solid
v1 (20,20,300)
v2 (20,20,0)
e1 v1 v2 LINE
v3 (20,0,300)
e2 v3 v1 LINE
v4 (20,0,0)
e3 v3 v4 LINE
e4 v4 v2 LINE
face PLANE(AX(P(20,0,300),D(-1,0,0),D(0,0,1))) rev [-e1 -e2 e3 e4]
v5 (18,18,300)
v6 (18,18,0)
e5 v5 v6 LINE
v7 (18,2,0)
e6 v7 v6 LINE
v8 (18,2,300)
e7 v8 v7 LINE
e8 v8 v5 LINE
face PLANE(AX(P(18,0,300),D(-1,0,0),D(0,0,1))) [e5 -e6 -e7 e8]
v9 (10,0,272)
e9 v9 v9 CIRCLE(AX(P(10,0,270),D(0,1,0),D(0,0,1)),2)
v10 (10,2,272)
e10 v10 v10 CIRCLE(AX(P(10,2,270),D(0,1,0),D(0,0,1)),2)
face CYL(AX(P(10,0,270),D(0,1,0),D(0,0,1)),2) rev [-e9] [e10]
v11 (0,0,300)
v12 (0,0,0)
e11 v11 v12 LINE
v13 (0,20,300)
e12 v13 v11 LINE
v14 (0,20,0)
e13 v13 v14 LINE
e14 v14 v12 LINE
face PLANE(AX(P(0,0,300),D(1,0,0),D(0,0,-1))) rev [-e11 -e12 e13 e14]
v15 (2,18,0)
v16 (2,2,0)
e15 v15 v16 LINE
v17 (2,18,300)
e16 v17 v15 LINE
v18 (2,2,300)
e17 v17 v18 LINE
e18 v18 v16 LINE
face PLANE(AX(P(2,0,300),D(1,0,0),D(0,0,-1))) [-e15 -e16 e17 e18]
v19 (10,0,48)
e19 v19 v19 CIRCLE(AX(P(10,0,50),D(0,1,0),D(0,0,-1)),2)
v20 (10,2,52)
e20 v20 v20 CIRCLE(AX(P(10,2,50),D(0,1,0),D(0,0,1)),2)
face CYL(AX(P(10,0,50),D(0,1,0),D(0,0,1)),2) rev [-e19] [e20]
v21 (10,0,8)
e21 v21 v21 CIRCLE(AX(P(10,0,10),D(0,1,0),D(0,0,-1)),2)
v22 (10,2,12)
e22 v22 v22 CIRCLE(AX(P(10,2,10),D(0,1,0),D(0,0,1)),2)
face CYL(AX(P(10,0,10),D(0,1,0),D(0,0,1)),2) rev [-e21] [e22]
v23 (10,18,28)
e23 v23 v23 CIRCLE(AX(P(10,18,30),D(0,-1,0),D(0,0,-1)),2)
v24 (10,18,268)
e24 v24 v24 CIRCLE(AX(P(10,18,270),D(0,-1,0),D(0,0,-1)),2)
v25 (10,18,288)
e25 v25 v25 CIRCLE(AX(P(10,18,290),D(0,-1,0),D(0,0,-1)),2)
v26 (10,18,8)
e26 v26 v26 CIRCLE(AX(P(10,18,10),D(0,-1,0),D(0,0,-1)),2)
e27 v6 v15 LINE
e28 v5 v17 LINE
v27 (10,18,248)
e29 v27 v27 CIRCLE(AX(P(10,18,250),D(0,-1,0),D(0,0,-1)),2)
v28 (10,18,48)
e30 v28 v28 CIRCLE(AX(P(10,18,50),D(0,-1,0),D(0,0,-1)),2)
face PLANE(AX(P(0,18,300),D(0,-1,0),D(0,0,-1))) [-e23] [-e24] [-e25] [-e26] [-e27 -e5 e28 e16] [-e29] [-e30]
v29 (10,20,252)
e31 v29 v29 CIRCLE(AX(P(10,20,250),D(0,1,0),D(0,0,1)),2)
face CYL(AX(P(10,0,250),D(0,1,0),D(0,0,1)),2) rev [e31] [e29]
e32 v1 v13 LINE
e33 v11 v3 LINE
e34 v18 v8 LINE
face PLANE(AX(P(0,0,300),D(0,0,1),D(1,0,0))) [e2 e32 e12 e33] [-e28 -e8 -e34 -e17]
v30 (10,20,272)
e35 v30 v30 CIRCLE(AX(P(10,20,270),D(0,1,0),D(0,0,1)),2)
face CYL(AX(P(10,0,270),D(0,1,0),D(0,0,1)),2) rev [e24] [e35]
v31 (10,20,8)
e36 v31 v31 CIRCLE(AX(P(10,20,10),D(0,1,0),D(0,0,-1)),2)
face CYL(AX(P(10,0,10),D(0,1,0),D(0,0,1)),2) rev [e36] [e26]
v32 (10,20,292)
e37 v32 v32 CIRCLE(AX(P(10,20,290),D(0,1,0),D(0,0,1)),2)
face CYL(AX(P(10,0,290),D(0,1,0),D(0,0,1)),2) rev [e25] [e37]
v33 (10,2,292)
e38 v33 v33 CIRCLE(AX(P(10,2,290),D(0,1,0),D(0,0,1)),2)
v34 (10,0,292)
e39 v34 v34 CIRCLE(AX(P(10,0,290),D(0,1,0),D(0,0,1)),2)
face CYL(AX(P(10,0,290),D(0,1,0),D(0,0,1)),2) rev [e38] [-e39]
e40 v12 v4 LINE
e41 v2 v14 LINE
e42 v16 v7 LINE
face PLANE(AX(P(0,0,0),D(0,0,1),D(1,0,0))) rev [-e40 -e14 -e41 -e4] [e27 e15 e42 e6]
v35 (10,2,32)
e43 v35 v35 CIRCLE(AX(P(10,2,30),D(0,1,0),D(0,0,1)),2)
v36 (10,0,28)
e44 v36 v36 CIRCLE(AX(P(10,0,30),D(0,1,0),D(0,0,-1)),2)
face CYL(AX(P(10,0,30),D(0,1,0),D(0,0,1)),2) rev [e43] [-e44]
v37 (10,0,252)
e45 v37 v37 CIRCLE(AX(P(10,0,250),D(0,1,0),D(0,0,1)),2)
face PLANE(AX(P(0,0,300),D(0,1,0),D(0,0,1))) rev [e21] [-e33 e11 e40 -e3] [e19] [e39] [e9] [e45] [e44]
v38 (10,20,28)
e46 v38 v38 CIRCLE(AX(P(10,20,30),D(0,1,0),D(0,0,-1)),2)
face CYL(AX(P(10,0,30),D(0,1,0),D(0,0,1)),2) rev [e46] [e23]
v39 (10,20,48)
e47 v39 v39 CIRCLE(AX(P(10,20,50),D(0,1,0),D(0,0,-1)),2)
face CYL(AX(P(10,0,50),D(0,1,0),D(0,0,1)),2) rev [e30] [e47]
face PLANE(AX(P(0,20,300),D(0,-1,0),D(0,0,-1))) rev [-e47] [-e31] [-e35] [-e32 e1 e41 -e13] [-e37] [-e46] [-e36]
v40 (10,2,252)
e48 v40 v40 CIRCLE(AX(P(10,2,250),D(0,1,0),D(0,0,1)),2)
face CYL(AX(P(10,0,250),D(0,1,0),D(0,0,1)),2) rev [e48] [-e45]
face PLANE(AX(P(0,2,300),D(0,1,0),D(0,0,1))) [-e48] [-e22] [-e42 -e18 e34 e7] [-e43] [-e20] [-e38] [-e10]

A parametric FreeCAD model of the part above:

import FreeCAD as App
import Part
import Sketcher

V = App.Vector
Q = App.Units.Quantity

doc = App.newDocument("Part")
body = doc.addObject("PartDesign::Body", "Body")

# Sketch on XY plane
sketch1 = body.newObject("Sketcher::SketchObject", "Sketch")
sketch1.AttachmentSupport = (doc.getObject("XY_Plane"), [""])
sketch1.MapMode = "FlatFace"
sketch1.addGeometry([
    Part.LineSegment(V(0, 20, 0), V(0, 0, 0)),  # 0
    Part.LineSegment(V(0, 0, 0), V(20, 0, 0)),  # 1
    Part.LineSegment(V(20, 0, 0), V(20, 20, 0)),  # 2
    Part.LineSegment(V(20, 20, 0), V(0, 20, 0)),  # 3
    Part.LineSegment(V(18, 2, 0), V(2, 2, 0)),  # 4
    Part.LineSegment(V(2, 2, 0), V(2, 18, 0)),  # 5
    Part.LineSegment(V(2, 18, 0), V(18, 18, 0)),  # 6
    Part.LineSegment(V(18, 18, 0), V(18, 2, 0)),  # 7
], False)
sketch1.addConstraint([
    Sketcher.Constraint("Coincident", 0, 2, 1, 1),
    Sketcher.Constraint("Coincident", 1, 2, 2, 1),
    Sketcher.Constraint("Coincident", 2, 2, 3, 1),
    Sketcher.Constraint("Coincident", 3, 2, 0, 1),
    Sketcher.Constraint("Coincident", 4, 2, 5, 1),
    Sketcher.Constraint("Coincident", 5, 2, 6, 1),
    Sketcher.Constraint("Coincident", 6, 2, 7, 1),
    Sketcher.Constraint("Coincident", 7, 2, 4, 1),
    Sketcher.Constraint("Vertical", 0),
    Sketcher.Constraint("Horizontal", 1),
    Sketcher.Constraint("Vertical", 2),
    Sketcher.Constraint("Horizontal", 3),
    Sketcher.Constraint("Horizontal", 4),
    Sketcher.Constraint("Vertical", 5),
    Sketcher.Constraint("Horizontal", 6),
    Sketcher.Constraint("Vertical", 7),
    Sketcher.Constraint("Coincident", 0, 2, -1, 1),
    Sketcher.Constraint("Equal", 3, 0),
    Sketcher.Constraint("Equal", 6, 5),
    Sketcher.Constraint("DistanceX", 1, 1, 1, 2, Q("20 mm")),
    Sketcher.Constraint("DistanceX", 4, 2, 4, 1, Q("16 mm")),
    Sketcher.Constraint("DistanceX", -1, 1, 4, 2, Q("2 mm")),
    Sketcher.Constraint("DistanceY", -1, 1, 4, 2, Q("2 mm")),
])
pad1 = body.newObject("PartDesign::Pad", "Pad")
pad1.Profile = sketch1
pad1.Length = 300

# Sketch on XZ plane
sketch2 = body.newObject("Sketcher::SketchObject", "Sketch001")
sketch2.AttachmentSupport = (doc.getObject("XZ_Plane"), [""])
sketch2.MapMode = "FlatFace"
sketch2.AttachmentOffset = App.Placement(V(0, 0, -20), App.Rotation())
sketch2.addGeometry([
    Part.Circle(V(10, 290, 0), V(0, 0, 1), 2),  # 0
    Part.Circle(V(10, 270, 0), V(0, 0, 1), 2),  # 1
    Part.Circle(V(10, 250, 0), V(0, 0, 1), 2),  # 2
    Part.Circle(V(10, 10, 0), V(0, 0, 1), 2),  # 3
    Part.Circle(V(10, 30, 0), V(0, 0, 1), 2),  # 4
    Part.Circle(V(10, 50, 0), V(0, 0, 1), 2),  # 5
], False)
sketch2.addConstraint([
    Sketcher.Constraint("Equal", 0, 1),
    Sketcher.Constraint("Equal", 1, 2),
    Sketcher.Constraint("Equal", 2, 3),
    Sketcher.Constraint("Equal", 3, 4),
    Sketcher.Constraint("Equal", 4, 5),
    Sketcher.Constraint("Vertical", 0, 3, 1, 3),
    Sketcher.Constraint("Vertical", 1, 3, 2, 3),
    Sketcher.Constraint("Vertical", 2, 3, 3, 3),
    Sketcher.Constraint("Vertical", 3, 3, 4, 3),
    Sketcher.Constraint("Vertical", 4, 3, 5, 3),
    Sketcher.Constraint("Diameter", 0, Q("4 mm")),
    Sketcher.Constraint("DistanceX", -1, 1, 0, 3, Q("10 mm")),
    Sketcher.Constraint("DistanceY", -1, 1, 0, 3, Q("290 mm")),
    Sketcher.Constraint("DistanceY", -1, 1, 1, 3, Q("270 mm")),
    Sketcher.Constraint("DistanceY", -1, 1, 2, 3, Q("250 mm")),
    Sketcher.Constraint("DistanceY", -1, 1, 3, 3, Q("10 mm")),
    Sketcher.Constraint("DistanceY", -1, 1, 4, 3, Q("30 mm")),
    Sketcher.Constraint("DistanceY", -1, 1, 5, 3, Q("50 mm")),
])
pocket1 = body.newObject("PartDesign::Pocket", "Pocket")
pocket1.Profile = sketch2
pocket1.Type = "ThroughAll"
pocket1.Reversed = True

doc.recompute()
